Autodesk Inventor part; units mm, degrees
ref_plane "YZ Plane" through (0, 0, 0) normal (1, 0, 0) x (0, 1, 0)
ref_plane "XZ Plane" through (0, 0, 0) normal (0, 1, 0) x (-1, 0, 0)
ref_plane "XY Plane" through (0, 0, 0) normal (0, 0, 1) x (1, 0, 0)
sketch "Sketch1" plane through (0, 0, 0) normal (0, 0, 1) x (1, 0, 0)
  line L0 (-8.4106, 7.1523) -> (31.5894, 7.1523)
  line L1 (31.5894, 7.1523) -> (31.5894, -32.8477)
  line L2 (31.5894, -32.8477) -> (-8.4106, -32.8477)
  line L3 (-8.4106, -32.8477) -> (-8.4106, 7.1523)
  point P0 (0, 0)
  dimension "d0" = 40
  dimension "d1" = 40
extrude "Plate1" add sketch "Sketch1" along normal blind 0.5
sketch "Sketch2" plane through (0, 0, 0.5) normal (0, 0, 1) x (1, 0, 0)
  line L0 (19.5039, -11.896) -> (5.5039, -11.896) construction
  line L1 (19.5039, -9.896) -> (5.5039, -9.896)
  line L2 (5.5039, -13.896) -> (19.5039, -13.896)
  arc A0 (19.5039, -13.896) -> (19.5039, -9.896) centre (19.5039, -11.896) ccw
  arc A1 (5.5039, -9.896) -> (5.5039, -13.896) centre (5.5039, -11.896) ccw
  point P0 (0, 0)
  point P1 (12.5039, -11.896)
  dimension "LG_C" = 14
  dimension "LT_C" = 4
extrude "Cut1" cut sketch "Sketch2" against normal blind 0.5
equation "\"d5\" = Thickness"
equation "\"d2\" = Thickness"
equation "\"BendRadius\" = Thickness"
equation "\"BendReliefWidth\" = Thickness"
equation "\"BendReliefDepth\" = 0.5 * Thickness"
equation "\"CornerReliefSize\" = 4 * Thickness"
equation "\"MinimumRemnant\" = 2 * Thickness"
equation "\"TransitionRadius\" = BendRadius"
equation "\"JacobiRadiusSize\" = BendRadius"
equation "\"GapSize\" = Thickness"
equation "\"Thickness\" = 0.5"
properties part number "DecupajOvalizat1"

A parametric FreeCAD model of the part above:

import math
import FreeCAD as App
import Part
import Sketcher

V = App.Vector
Q = App.Units.Quantity

doc = App.newDocument("Part")
body = doc.addObject("PartDesign::Body", "Body")

sketch1 = doc.addObject("Sketcher::SketchObject", "Sketch")
body.addObject(sketch1)
sketch1.AttachmentSupport = (doc.XY_Plane, [""])
sketch1.MapMode = "FlatFace"
sketch1.addGeometry([
    Part.LineSegment(V(32, 7, 0), V(-8, 7, 0)),
    Part.LineSegment(V(-8, 7, 0), V(-8, -33, 0)),
    Part.LineSegment(V(-8, -33, 0), V(32, -33, 0)),
    Part.LineSegment(V(32, -33, 0), V(32, 7, 0)),
], False)
sketch1.addConstraint([
    Sketcher.Constraint("Coincident", 0, 2, 1, 1),
    Sketcher.Constraint("Coincident", 1, 2, 2, 1),
    Sketcher.Constraint("Coincident", 2, 2, 3, 1),
    Sketcher.Constraint("Coincident", 3, 2, 0, 1),
    Sketcher.Constraint("Horizontal", 0),
    Sketcher.Constraint("Vertical", 1),
    Sketcher.Constraint("Horizontal", 2),
    Sketcher.Constraint("Vertical", 3),
    Sketcher.Constraint("Equal", 2, 1),
    Sketcher.Constraint("DistanceX", 0, 2, 0, 1, Q("40 mm")),
    Sketcher.Constraint("DistanceX", 0, 2, -1, 1, Q("8.4106 mm")),
    Sketcher.Constraint("DistanceY", -1, 1, 0, 2, Q("7.1523 mm")),
])
pad1 = doc.addObject("PartDesign::Pad", "Pad")
body.addObject(pad1)
pad1.Profile = sketch1
pad1.Length = 0.5

sketch2 = doc.addObject("Sketcher::SketchObject", "Sketch001")
body.addObject(sketch2)
sketch2.AttachmentSupport = (doc.XY_Plane, [""])
sketch2.MapMode = "FlatFace"
sketch2.AttachmentOffset = App.Placement(V(0, 0, 0.5), App.Rotation())
sketch2.addGeometry([
    Part.ArcOfCircle(Part.Circle(V(19.5, -11.9, 0), V(0, 0, 1), 2), math.radians(-90), math.radians(90)),
    Part.LineSegment(V(19.5, -9.9, 0), V(5.5, -9.9, 0)),
    Part.ArcOfCircle(Part.Circle(V(5.5, -11.9, 0), V(0, 0, 1), 2), math.radians(90), math.radians(270)),
    Part.LineSegment(V(5.5, -13.9, 0), V(19.5, -13.9, 0)),
], False)
sketch2.addConstraint([
    Sketcher.Constraint("Tangent", 0, 2, 1, 1),
    Sketcher.Constraint("Tangent", 1, 2, 2, 1),
    Sketcher.Constraint("Tangent", 2, 2, 3, 1),
    Sketcher.Constraint("Tangent", 3, 2, 0, 1),
    Sketcher.Constraint("Horizontal", 1),
    Sketcher.Constraint("Horizontal", 3),
    Sketcher.Constraint("Radius", 0, Q("2 mm")),
    Sketcher.Constraint("DistanceX", 1, 2, 1, 1, Q("14 mm")),
    Sketcher.Constraint("DistanceX", -1, 1, 0, 3, Q("19.504 mm")),
    Sketcher.Constraint("DistanceY", 0, 3, -1, 1, Q("11.896 mm")),
])
pocket1 = doc.addObject("PartDesign::Pocket", "Pocket")
body.addObject(pocket1)
pocket1.Profile = sketch2
pocket1.Length = 0.5

doc.recompute()
